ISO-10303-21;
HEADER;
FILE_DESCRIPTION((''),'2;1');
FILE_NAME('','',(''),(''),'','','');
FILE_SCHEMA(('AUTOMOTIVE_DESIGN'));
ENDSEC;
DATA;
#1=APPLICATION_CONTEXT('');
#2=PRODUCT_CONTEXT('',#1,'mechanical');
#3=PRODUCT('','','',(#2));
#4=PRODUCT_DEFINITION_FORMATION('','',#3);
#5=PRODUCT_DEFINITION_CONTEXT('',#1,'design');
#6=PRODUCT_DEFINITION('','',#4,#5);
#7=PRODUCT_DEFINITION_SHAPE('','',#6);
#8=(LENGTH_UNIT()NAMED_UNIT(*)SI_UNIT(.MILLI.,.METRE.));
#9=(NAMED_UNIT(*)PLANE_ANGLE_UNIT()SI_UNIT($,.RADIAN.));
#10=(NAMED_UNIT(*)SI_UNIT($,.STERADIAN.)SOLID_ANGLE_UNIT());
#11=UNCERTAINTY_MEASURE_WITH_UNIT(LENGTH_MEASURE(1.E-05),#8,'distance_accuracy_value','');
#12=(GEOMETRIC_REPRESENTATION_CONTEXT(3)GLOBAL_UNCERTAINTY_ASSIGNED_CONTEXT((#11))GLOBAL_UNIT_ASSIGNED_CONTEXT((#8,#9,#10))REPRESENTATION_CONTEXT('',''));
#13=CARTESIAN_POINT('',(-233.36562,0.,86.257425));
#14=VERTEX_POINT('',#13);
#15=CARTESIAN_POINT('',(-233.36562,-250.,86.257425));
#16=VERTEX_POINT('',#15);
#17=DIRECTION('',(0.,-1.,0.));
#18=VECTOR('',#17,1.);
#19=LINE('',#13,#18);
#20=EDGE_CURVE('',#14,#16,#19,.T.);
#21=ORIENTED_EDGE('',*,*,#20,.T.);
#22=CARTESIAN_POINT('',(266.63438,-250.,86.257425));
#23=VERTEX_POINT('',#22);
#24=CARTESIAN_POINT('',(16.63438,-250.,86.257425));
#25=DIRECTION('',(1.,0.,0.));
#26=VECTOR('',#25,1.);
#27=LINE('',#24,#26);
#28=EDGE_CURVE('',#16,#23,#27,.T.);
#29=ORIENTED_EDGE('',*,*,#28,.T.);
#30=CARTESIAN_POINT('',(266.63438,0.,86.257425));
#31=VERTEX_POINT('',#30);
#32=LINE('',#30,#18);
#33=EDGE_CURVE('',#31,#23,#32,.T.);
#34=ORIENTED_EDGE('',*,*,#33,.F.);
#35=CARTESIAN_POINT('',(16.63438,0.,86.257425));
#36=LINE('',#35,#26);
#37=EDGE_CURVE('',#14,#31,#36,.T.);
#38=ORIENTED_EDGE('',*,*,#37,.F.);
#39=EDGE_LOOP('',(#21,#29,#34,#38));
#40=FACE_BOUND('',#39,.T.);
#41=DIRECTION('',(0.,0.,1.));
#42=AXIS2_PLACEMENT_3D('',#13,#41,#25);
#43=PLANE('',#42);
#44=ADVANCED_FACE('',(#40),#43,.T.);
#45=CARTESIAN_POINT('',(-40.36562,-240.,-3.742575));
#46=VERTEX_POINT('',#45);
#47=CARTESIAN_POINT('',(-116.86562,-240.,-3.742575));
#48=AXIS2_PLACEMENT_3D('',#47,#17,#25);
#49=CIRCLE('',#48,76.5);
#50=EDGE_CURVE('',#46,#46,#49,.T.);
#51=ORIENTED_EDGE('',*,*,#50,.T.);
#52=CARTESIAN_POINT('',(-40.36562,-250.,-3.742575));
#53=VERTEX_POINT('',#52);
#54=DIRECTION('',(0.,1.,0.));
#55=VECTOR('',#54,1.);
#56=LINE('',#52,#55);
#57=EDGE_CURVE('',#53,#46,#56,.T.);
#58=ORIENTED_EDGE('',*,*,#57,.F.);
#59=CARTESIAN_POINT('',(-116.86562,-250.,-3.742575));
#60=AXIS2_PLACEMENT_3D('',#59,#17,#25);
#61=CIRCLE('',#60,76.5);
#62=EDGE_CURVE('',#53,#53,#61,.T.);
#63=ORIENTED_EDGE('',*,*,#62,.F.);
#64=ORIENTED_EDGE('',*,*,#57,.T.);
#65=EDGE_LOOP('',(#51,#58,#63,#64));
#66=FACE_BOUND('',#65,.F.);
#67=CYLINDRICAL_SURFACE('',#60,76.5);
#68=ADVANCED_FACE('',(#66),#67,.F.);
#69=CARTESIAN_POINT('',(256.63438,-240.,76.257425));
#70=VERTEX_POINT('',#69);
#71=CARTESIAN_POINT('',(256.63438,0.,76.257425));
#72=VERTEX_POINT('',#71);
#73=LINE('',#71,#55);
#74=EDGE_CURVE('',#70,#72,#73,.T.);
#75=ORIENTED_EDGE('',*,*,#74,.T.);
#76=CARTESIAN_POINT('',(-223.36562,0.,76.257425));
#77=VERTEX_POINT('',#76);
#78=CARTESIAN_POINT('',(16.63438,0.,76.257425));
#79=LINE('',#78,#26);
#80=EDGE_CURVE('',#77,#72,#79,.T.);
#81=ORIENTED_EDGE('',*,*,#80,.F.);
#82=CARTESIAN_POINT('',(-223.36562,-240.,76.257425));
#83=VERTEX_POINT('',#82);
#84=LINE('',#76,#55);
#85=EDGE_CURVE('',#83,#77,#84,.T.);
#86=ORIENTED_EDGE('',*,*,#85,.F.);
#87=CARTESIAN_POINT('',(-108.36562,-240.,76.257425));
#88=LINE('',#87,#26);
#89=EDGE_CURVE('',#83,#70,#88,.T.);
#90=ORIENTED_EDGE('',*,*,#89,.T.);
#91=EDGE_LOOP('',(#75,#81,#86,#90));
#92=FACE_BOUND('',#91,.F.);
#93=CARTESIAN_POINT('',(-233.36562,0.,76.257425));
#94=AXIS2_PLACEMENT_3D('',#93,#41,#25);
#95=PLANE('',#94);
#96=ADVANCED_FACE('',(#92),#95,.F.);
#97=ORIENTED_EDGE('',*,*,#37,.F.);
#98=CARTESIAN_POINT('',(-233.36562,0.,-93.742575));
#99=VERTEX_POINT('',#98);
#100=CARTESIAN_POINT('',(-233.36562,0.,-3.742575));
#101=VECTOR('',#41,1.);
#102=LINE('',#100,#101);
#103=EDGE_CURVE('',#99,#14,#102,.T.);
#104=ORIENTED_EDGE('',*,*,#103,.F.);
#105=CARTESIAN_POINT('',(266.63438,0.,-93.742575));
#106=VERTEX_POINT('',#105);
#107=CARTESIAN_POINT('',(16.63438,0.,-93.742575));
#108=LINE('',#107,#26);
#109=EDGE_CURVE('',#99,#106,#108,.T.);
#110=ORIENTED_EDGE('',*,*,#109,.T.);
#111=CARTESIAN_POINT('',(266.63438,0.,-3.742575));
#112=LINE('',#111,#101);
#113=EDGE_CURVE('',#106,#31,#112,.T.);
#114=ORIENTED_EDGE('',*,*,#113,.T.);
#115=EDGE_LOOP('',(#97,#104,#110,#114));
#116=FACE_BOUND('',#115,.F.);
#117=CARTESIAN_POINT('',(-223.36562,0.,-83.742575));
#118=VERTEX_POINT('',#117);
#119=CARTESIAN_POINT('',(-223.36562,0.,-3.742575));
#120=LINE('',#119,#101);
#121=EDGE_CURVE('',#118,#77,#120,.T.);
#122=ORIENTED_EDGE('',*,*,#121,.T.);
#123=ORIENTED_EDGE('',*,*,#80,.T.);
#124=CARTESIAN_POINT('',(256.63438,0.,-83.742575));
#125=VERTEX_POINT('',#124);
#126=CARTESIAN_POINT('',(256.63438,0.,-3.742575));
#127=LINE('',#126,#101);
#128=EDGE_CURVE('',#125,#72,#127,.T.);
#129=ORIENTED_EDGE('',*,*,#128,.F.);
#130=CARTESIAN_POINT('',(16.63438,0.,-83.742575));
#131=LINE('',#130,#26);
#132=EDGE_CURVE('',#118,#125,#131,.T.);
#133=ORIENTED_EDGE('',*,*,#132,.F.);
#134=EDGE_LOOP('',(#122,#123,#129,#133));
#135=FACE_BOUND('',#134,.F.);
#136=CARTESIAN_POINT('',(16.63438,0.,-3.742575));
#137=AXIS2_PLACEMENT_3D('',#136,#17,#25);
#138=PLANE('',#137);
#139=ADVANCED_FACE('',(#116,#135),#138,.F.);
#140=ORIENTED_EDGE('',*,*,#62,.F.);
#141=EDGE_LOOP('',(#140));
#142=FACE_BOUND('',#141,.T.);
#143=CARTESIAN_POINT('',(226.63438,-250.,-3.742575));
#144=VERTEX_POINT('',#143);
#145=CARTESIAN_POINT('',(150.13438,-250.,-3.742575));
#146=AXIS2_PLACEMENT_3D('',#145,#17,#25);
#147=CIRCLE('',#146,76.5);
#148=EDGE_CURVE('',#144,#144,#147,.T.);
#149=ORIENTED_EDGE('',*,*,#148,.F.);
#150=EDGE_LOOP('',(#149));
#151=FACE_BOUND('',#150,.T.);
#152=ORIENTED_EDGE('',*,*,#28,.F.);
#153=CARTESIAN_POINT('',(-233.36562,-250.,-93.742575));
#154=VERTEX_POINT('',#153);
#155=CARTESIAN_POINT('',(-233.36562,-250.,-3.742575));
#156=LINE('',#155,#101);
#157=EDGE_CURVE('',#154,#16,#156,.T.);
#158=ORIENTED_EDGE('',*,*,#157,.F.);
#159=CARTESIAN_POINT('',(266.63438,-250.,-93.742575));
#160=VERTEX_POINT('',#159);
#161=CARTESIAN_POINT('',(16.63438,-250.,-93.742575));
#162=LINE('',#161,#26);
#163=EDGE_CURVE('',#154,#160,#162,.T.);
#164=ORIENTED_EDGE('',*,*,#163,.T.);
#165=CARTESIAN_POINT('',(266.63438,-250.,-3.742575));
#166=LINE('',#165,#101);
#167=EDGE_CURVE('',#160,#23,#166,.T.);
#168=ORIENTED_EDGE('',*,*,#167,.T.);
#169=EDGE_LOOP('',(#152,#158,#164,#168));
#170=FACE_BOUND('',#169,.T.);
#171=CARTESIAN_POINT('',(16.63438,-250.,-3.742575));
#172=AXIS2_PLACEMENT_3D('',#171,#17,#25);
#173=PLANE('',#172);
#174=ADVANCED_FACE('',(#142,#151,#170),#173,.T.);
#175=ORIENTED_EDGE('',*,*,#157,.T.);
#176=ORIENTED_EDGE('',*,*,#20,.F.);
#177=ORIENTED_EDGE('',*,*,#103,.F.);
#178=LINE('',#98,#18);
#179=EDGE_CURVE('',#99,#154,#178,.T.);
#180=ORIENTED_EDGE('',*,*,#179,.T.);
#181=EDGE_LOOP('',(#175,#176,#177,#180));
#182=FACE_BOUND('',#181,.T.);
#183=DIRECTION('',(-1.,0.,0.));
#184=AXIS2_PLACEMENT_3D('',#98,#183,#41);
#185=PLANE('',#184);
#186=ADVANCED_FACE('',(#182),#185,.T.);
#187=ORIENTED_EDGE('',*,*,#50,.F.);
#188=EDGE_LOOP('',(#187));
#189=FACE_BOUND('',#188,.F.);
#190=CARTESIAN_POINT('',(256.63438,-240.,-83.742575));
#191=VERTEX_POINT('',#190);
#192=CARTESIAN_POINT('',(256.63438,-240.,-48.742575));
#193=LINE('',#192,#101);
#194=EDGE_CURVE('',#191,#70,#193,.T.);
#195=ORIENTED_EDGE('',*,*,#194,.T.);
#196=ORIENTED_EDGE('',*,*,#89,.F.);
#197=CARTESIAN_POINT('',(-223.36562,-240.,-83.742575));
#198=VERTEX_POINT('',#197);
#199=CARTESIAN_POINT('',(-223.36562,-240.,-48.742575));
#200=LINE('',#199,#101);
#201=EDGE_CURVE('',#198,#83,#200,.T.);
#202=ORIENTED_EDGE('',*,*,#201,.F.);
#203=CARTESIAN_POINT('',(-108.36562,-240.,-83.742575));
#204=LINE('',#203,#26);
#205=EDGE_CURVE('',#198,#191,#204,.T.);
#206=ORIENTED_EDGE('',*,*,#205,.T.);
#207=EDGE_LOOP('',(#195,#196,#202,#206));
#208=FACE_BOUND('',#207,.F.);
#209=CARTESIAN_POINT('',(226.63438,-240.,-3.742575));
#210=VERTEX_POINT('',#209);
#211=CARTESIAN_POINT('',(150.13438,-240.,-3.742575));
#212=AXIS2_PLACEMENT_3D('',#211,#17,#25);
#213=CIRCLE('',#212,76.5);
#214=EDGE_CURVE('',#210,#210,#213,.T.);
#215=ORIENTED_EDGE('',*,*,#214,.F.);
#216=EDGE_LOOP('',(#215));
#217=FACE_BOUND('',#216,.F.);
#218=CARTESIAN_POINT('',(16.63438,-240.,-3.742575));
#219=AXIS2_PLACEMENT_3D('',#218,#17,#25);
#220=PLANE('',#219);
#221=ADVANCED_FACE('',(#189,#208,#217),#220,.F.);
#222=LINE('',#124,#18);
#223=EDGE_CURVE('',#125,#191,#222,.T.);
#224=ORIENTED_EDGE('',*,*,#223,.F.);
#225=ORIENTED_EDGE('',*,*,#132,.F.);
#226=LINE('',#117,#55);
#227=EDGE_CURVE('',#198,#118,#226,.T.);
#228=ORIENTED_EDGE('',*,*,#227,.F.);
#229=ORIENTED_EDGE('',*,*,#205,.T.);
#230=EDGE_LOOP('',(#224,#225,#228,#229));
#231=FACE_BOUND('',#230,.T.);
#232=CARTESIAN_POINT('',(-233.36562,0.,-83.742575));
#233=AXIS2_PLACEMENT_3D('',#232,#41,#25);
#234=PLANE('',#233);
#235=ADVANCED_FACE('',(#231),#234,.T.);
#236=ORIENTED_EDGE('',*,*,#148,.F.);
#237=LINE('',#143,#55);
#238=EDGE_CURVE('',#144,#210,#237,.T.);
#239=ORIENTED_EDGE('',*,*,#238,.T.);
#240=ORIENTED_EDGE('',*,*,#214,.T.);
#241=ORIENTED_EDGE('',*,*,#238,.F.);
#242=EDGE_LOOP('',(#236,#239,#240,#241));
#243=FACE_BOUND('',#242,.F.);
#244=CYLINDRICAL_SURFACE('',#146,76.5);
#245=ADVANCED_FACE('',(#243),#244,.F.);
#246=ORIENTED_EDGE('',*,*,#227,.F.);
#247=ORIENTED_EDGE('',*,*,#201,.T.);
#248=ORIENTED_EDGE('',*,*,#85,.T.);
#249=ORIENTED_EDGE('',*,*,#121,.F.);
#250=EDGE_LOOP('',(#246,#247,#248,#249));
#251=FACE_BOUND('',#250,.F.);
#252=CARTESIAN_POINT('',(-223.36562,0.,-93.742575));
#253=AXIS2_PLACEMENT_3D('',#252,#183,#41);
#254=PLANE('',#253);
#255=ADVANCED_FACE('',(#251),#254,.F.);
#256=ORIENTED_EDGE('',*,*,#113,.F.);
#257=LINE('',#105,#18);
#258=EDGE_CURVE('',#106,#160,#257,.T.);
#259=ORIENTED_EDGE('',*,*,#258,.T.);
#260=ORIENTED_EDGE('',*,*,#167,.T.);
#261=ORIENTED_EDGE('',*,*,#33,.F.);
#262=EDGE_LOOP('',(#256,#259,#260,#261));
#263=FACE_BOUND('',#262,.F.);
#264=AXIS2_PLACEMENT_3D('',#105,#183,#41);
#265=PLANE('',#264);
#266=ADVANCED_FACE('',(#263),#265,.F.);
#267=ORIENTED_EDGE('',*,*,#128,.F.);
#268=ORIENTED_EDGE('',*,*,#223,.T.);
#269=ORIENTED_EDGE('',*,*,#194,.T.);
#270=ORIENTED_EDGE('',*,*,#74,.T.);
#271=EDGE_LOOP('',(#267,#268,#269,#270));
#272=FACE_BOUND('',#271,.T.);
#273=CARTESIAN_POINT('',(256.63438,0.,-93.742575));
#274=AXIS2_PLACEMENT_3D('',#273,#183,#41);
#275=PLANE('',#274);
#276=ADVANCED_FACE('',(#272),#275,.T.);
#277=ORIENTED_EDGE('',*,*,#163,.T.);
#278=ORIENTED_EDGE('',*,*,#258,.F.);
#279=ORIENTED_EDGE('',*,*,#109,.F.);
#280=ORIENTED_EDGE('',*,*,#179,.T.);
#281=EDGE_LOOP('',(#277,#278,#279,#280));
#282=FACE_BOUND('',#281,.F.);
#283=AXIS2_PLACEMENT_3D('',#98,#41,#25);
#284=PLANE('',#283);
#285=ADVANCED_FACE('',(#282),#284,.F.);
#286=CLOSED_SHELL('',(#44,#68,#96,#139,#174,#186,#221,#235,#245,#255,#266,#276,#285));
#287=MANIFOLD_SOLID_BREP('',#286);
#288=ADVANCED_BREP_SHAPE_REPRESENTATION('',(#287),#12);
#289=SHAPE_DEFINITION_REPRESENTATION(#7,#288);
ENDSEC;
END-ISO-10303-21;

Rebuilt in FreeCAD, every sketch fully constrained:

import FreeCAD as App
import Part
import Sketcher


def faces_at(feature, points):
    """Names of the faces that lie closest to the given points."""
    faces = feature.Shape.Faces
    near = lambda p: min(range(len(faces)), key=lambda i: faces[i].distToShape(Part.Vertex(*p))[0])
    return sorted({f"Face{near(p) + 1}" for p in points})

doc = App.newDocument("Part")
params = doc.addObject("Spreadsheet::Sheet", "Params")
for row, (alias, value) in enumerate([
    ("sketch1_width", "500 mm"),
    ("sketch1_height", "180 mm"),
    ("pad1_length", "250 mm"),
    ("thickness_wall", "10 mm"),
    ("sketch2_diameter", "153 mm"),
    ("pocket1_length", "25 mm"),
], start=1):
    params.set(f"A{row}", alias)
    params.set(f"B{row}", "=" + value)
    params.setAlias(f"B{row}", alias)

body = doc.addObject("PartDesign::Body", "Body")

sketch1 = doc.addObject("Sketcher::SketchObject", "Sketch")
body.addObject(sketch1)
sketch1.AttachmentSupport = (doc.XZ_Plane, [""])
sketch1.MapMode = "FlatFace"
sketch1.addGeometry(Part.LineSegment(App.Vector(-233.36562, 86.257425, 0), App.Vector(-233.36562, -93.742575, 0)), False)
sketch1.addGeometry(Part.LineSegment(App.Vector(-233.36562, -93.742575, 0), App.Vector(266.63438, -93.742575, 0)), False)
sketch1.addGeometry(Part.LineSegment(App.Vector(266.63438, -93.742575, 0), App.Vector(266.63438, 86.257425, 0)), False)
sketch1.addGeometry(Part.LineSegment(App.Vector(266.63438, 86.257425, 0), App.Vector(-233.36562, 86.257425, 0)), False)
sketch1.addConstraint(Sketcher.Constraint("Coincident", 0, 2, 1, 1))
sketch1.addConstraint(Sketcher.Constraint("Coincident", 1, 2, 2, 1))
sketch1.addConstraint(Sketcher.Constraint("Coincident", 2, 2, 3, 1))
sketch1.addConstraint(Sketcher.Constraint("Coincident", 3, 2, 0, 1))
sketch1.addConstraint(Sketcher.Constraint("Vertical", 0))
sketch1.addConstraint(Sketcher.Constraint("Horizontal", 1))
sketch1.addConstraint(Sketcher.Constraint("Vertical", 2))
sketch1.addConstraint(Sketcher.Constraint("Horizontal", 3))
sketch1.addConstraint(Sketcher.Constraint("DistanceX", 1, 1, 1, 2, 500.0))
sketch1.addConstraint(Sketcher.Constraint("DistanceY", 0, 2, 0, 1, 180.0))
sketch1.addConstraint(Sketcher.Constraint("DistanceX", 0, 2, -1, 1, 233.36562))
sketch1.addConstraint(Sketcher.Constraint("DistanceY", 0, 2, -1, 1, 93.742575))
sketch1.setExpression("Constraints[8]", "Params.sketch1_width")
sketch1.setExpression("Constraints[9]", "Params.sketch1_height")
pad1 = doc.addObject("PartDesign::Pad", "Pad")
body.addObject(pad1)
pad1.Profile = sketch1
pad1.setExpression("Length", "Params.pad1_length")
doc.recompute()

thickness = doc.addObject("PartDesign::Thickness", "Thickness")
body.addObject(thickness)
thickness.Base = (pad1, faces_at(pad1, [(16.634, 0, -3.743)]))
thickness.setExpression("Value", "Params.thickness_wall")
thickness.Reversed = True
thickness.Join = "Arc"

sketch2 = doc.addObject("Sketcher::SketchObject", "Sketch001")
body.addObject(sketch2)
sketch2.AttachmentSupport = (doc.XZ_Plane, [""])
sketch2.MapMode = "FlatFace"
sketch2.AttachmentOffset = App.Placement(App.Vector(0, 0, 250), App.Rotation())
sketch2.addGeometry(Part.Circle(App.Vector(-116.86562, -3.742575, 0), App.Vector(0, 0, 1), 76.5), False)
sketch2.addGeometry(Part.Circle(App.Vector(150.13438, -3.742575, 0), App.Vector(0, 0, 1), 76.5), False)
sketch2.addConstraint(Sketcher.Constraint("Equal", 0, 1))
sketch2.addConstraint(Sketcher.Constraint("Horizontal", 0, 3, 1, 3))
sketch2.addConstraint(Sketcher.Constraint("Diameter", 0, 153.0))
sketch2.addConstraint(Sketcher.Constraint("DistanceX", 0, 3, 1, 3, 267.0))
sketch2.addConstraint(Sketcher.Constraint("DistanceX", 0, 3, -1, 1, 116.86562))
sketch2.addConstraint(Sketcher.Constraint("DistanceY", 0, 3, -1, 1, 3.742575))
sketch2.setExpression("Constraints[2]", "Params.sketch2_diameter")
pocket1 = doc.addObject("PartDesign::Pocket", "Pocket")
body.addObject(pocket1)
pocket1.Profile = sketch2
pocket1.setExpression("Length", "Params.pocket1_length")

doc.recompute()
